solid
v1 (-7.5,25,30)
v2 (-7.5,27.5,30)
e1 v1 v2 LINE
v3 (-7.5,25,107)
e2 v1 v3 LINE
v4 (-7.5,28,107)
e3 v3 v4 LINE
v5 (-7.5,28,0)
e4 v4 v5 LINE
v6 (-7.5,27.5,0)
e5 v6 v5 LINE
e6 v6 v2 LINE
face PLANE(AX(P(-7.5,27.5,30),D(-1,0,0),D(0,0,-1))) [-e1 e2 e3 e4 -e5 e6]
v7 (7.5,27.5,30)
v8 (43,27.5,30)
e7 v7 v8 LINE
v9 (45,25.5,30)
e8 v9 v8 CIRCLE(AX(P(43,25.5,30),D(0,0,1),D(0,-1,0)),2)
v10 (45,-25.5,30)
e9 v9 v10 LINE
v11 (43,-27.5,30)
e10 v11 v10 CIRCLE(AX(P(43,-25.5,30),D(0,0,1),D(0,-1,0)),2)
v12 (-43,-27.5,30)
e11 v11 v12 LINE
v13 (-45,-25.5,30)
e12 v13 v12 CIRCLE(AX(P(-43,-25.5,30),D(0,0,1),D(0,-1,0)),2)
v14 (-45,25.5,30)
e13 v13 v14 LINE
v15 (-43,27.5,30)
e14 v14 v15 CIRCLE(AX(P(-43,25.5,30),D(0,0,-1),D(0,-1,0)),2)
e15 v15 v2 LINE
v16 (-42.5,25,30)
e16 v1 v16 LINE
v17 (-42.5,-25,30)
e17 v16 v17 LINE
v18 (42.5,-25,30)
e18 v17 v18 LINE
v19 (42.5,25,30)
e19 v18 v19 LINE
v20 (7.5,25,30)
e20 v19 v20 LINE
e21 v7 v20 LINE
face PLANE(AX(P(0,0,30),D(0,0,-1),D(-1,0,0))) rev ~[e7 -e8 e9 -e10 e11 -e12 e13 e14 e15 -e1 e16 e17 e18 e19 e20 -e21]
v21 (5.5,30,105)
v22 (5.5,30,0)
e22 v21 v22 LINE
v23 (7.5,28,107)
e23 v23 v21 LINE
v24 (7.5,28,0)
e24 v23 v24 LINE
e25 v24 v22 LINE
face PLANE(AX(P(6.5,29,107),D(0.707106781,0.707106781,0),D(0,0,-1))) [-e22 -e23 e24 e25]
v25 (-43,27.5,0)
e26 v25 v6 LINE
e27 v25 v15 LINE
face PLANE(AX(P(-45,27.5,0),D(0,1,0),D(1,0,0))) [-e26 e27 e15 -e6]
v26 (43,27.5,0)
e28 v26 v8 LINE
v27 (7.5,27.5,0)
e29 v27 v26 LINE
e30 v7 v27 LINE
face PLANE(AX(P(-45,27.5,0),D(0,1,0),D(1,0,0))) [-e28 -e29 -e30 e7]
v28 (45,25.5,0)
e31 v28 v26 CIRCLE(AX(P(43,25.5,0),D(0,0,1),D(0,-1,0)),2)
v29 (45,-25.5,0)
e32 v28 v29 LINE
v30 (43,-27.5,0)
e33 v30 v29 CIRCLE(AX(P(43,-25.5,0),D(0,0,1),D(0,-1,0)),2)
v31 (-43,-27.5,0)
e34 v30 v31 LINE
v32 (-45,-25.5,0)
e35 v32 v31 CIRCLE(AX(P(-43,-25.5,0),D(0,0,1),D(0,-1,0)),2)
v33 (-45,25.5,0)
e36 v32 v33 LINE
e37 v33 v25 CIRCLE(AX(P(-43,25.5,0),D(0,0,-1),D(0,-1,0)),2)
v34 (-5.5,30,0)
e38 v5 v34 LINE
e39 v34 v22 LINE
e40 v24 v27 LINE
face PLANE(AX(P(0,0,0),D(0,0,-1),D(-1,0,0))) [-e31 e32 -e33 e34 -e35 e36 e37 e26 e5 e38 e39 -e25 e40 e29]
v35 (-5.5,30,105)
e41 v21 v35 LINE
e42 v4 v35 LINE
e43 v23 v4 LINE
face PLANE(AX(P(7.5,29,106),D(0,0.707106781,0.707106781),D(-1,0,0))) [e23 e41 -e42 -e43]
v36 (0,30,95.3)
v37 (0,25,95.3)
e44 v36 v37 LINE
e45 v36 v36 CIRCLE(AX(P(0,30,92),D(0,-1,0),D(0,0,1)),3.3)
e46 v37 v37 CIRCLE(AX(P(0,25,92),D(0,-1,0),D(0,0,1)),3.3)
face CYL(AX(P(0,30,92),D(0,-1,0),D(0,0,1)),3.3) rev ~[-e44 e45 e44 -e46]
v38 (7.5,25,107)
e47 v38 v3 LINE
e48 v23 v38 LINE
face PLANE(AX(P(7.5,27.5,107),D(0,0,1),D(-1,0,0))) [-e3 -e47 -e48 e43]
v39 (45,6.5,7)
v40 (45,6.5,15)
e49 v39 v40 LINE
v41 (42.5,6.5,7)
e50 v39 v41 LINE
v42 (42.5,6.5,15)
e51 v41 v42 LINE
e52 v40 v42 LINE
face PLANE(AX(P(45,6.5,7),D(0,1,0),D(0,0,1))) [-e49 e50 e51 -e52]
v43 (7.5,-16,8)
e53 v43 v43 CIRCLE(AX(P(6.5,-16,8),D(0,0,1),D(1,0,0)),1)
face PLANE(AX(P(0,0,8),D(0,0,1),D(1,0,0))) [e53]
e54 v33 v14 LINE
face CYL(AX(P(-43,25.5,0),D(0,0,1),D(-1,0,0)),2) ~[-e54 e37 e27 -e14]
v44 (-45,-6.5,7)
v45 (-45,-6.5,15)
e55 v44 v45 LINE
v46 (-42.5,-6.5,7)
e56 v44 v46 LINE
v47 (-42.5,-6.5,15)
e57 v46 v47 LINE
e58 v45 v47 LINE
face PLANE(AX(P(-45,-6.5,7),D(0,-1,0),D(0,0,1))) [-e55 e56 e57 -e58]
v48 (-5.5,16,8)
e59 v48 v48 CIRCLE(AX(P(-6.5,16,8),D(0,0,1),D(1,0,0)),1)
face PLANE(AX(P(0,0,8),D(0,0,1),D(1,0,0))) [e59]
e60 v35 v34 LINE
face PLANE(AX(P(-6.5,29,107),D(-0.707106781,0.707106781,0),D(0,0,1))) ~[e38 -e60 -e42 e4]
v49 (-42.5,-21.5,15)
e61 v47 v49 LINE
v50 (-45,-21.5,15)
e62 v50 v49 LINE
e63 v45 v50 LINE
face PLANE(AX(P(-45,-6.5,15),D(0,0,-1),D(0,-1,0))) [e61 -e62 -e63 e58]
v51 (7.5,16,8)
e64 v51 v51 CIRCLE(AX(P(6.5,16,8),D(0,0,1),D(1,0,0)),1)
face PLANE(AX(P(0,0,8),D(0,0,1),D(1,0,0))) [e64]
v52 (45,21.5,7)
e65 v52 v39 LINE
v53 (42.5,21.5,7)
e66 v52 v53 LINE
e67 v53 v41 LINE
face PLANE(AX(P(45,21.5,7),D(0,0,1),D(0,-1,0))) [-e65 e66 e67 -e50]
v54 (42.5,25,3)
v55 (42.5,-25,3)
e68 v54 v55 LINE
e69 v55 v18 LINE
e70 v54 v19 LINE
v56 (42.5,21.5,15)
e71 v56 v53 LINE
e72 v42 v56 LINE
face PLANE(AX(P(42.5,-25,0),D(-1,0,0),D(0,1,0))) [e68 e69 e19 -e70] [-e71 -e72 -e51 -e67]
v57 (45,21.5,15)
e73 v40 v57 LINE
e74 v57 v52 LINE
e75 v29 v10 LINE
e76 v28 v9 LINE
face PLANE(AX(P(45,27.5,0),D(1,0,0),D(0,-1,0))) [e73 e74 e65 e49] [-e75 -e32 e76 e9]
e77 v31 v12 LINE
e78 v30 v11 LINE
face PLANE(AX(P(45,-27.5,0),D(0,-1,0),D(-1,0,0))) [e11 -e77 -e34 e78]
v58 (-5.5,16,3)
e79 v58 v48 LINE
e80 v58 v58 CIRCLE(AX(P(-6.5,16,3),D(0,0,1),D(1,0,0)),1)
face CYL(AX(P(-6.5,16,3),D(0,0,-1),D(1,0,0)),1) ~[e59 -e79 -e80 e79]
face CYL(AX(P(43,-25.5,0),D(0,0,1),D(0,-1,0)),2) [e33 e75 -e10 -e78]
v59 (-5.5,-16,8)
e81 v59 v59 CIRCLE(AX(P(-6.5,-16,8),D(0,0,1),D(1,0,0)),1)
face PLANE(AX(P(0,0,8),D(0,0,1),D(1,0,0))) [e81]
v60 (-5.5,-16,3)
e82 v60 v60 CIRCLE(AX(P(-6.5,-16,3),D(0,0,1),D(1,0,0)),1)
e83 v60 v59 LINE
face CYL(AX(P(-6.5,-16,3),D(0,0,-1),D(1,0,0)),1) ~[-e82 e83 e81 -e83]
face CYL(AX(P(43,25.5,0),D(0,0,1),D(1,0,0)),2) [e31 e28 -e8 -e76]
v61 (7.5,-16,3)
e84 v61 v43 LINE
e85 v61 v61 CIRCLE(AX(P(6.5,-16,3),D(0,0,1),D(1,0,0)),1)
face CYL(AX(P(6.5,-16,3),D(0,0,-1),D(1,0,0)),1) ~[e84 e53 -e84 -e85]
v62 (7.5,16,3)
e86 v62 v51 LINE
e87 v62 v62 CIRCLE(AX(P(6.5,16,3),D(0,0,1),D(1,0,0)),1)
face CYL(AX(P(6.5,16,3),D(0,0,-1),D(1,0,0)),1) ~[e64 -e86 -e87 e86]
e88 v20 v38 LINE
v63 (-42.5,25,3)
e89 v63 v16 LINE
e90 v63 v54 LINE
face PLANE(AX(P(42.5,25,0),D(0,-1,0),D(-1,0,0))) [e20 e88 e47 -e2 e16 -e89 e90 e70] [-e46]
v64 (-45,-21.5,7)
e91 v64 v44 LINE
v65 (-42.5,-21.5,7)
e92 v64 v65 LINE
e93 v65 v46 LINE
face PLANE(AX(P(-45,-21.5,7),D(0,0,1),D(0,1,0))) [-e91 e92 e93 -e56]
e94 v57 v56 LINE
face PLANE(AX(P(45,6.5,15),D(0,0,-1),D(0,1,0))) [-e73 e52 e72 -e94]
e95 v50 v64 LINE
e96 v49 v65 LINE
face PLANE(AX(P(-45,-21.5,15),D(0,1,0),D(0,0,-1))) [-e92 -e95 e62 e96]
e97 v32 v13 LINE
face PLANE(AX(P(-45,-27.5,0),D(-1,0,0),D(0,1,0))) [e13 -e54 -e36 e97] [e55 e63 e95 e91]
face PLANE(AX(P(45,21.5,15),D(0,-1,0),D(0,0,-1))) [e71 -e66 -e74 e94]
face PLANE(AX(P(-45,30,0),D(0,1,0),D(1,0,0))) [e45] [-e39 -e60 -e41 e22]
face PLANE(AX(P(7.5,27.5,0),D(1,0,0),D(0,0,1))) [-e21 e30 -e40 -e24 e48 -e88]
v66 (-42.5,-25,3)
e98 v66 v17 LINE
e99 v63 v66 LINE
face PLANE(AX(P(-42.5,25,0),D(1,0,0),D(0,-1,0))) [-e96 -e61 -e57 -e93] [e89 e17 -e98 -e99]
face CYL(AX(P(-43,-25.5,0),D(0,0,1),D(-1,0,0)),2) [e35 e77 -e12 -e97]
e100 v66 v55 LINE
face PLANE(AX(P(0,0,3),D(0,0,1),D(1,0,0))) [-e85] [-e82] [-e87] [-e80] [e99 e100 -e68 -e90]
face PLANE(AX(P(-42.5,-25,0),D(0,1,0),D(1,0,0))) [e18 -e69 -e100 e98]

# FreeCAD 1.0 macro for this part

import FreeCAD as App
import Part
import Sketcher
from FreeCAD import Vector
Q = App.Units.Quantity


def edges_at(feature, points):
    """Names of the edges that pass closest to the given points."""
    edges = feature.Shape.Edges
    near = lambda p: min(range(len(edges)), key=lambda i: edges[i].distToShape(Part.Vertex(*p))[0])
    return sorted({f"Edge{near(p) + 1}" for p in points})

doc = App.newDocument("Part")
body = doc.addObject("PartDesign::Body", "Body")

sketch1 = body.newObject("Sketcher::SketchObject", "Sketch")
sketch1.AttachmentSupport = (doc.getObject("XY_Plane"), [""])
sketch1.MapMode = "FlatFace"
sketch1.addGeometry([
    Part.LineSegment(Vector(42.5, 25, 0), Vector(-42.5, 25, 0)),
    Part.LineSegment(Vector(-42.5, 25, 0), Vector(-42.5, -25, 0)),
    Part.LineSegment(Vector(-42.5, -25, 0), Vector(42.5, -25, 0)),
    Part.LineSegment(Vector(42.5, -25, 0), Vector(42.5, 25, 0)),
], False)
sketch1.addConstraint([
    Sketcher.Constraint("Coincident", 0, 2, 1, 1),
    Sketcher.Constraint("Coincident", 1, 2, 2, 1),
    Sketcher.Constraint("Coincident", 2, 2, 3, 1),
    Sketcher.Constraint("Coincident", 3, 2, 0, 1),
    Sketcher.Constraint("Horizontal", 0),
    Sketcher.Constraint("Vertical", 1),
    Sketcher.Constraint("Horizontal", 2),
    Sketcher.Constraint("Vertical", 3),
    Sketcher.Constraint("Symmetric", 0, 2, 2, 2, -1, 1),
    Sketcher.Constraint("DistanceX", 0, 2, 0, 1, Q("85 mm")),
    Sketcher.Constraint("DistanceY", 1, 2, 1, 1, Q("50 mm")),
])
pad1 = body.newObject("PartDesign::Pad", "Pad")
pad1.Profile = sketch1
pad1.Length = 3

sketch2 = body.newObject("Sketcher::SketchObject", "Sketch001")
sketch2.AttachmentSupport = (doc.getObject("XY_Plane"), [""])
sketch2.MapMode = "FlatFace"
sketch2.addGeometry([
    Part.LineSegment(Vector(-45, -27.5, 0), Vector(-45, 27.5, 0)),
    Part.LineSegment(Vector(-45, 27.5, 0), Vector(45, 27.5, 0)),
    Part.LineSegment(Vector(45, 27.5, 0), Vector(45, -27.5, 0)),
    Part.LineSegment(Vector(45, -27.5, 0), Vector(-45, -27.5, 0)),
    Part.LineSegment(Vector(42.5, -25, 0), Vector(42.5, 25, 0)),
    Part.LineSegment(Vector(42.5, 25, 0), Vector(-42.5, 25, 0)),
    Part.LineSegment(Vector(-42.5, 25, 0), Vector(-42.5, -25, 0)),
    Part.LineSegment(Vector(-42.5, -25, 0), Vector(42.5, -25, 0)),
], False)
sketch2.addConstraint([
    Sketcher.Constraint("Coincident", 0, 2, 1, 1),
    Sketcher.Constraint("Coincident", 1, 2, 2, 1),
    Sketcher.Constraint("Coincident", 2, 2, 3, 1),
    Sketcher.Constraint("Coincident", 3, 2, 0, 1),
    Sketcher.Constraint("Coincident", 4, 2, 5, 1),
    Sketcher.Constraint("Coincident", 5, 2, 6, 1),
    Sketcher.Constraint("Coincident", 6, 2, 7, 1),
    Sketcher.Constraint("Coincident", 7, 2, 4, 1),
    Sketcher.Constraint("Vertical", 0),
    Sketcher.Constraint("Horizontal", 1),
    Sketcher.Constraint("Vertical", 2),
    Sketcher.Constraint("Horizontal", 3),
    Sketcher.Constraint("Vertical", 4),
    Sketcher.Constraint("Horizontal", 5),
    Sketcher.Constraint("Vertical", 6),
    Sketcher.Constraint("Horizontal", 7),
    Sketcher.Constraint("Symmetric", 0, 2, 2, 2, -1, 1),
    Sketcher.Constraint("Symmetric", 4, 2, 6, 2, -1, 1),
    Sketcher.Constraint("DistanceX", 4, 2, 1, 2, Q("2.5 mm")),
    Sketcher.Constraint("DistanceY", 4, 2, 1, 2, Q("2.5 mm")),
    Sketcher.Constraint("DistanceX", 1, 1, 1, 2, Q("90 mm")),
    Sketcher.Constraint("DistanceY", 0, 1, 0, 2, Q("55 mm")),
])
pad2 = body.newObject("PartDesign::Pad", "Pad001")
pad2.Profile = sketch2
pad2.Length = 30

sketch3 = body.newObject("Sketcher::SketchObject", "Sketch002")
sketch3.AttachmentSupport = (doc.getObject("XY_Plane"), [""])
sketch3.MapMode = "FlatFace"
sketch3.AttachmentOffset = App.Placement(Vector(0, 0, 3), App.Rotation())
sketch3.addGeometry([
    Part.Circle(Vector(6.5, 16, 0), Vector(0, 0, 1), 1),
    Part.Circle(Vector(6.5, -16, 0), Vector(0, 0, 1), 1),
    Part.Circle(Vector(-6.5, 16, 0), Vector(0, 0, 1), 1),
    Part.Circle(Vector(-6.5, -16, 0), Vector(0, 0, 1), 1),
], False)
sketch3.addConstraint([
    Sketcher.Constraint("Equal", 0, 1),
    Sketcher.Constraint("Equal", 1, 2),
    Sketcher.Constraint("Equal", 2, 3),
    Sketcher.Constraint("Symmetric", 1, 3, 2, 3, -1, 1),
    Sketcher.Constraint("Symmetric", 0, 3, 3, 3, -1, 1),
    Sketcher.Constraint("Symmetric", 0, 3, 2, 3, -2),
    Sketcher.Constraint("Diameter", 0, Q("2 mm")),
    Sketcher.Constraint("DistanceY", -1, 1, 0, 3, Q("16 mm")),
    Sketcher.Constraint("DistanceX", 2, 3, 0, 3, Q("13 mm")),
])
pad3 = body.newObject("PartDesign::Pad", "Pad002")
pad3.Profile = sketch3
pad3.Length = 5

sketch4 = body.newObject("Sketcher::SketchObject", "Sketch003")
sketch4.AttachmentSupport = (doc.getObject("YZ_Plane"), [""])
sketch4.MapMode = "FlatFace"
sketch4.AttachmentOffset = App.Placement(Vector(0, 0, 45), App.Rotation())
sketch4.addGeometry([
    Part.LineSegment(Vector(6.5, 15, 0), Vector(6.5, 7, 0)),
    Part.LineSegment(Vector(6.5, 7, 0), Vector(21.5, 7, 0)),
    Part.LineSegment(Vector(21.5, 7, 0), Vector(21.5, 15, 0)),
    Part.LineSegment(Vector(21.5, 15, 0), Vector(6.5, 15, 0)),
], False)
sketch4.addConstraint([
    Sketcher.Constraint("Coincident", 0, 2, 1, 1),
    Sketcher.Constraint("Coincident", 1, 2, 2, 1),
    Sketcher.Constraint("Coincident", 2, 2, 3, 1),
    Sketcher.Constraint("Coincident", 3, 2, 0, 1),
    Sketcher.Constraint("Vertical", 0),
    Sketcher.Constraint("Horizontal", 1),
    Sketcher.Constraint("Vertical", 2),
    Sketcher.Constraint("Horizontal", 3),
    Sketcher.Constraint("DistanceX", 1, 1, 1, 2, Q("15 mm")),
    Sketcher.Constraint("DistanceY", 0, 2, 0, 1, Q("8 mm")),
    Sketcher.Constraint("DistanceY", -1, 1, 0, 2, Q("7 mm")),
    Sketcher.Constraint("DistanceX", -1, 1, 0, 2, Q("6.5 mm")),
])
pocket1 = body.newObject("PartDesign::Pocket", "Pocket")
pocket1.Profile = sketch4
pocket1.Length = 2.5
doc.recompute()

polarpattern = body.newObject("PartDesign::PolarPattern", "PolarPattern")
polarpattern.Originals = [pocket1]
polarpattern.Axis = (doc.getObject("Z_Axis"), [""])
polarpattern.Angle = 360
polarpattern.Occurrences = 2
body.Tip = polarpattern

sketch5 = body.newObject("Sketcher::SketchObject", "Sketch004")
sketch5.AttachmentSupport = (doc.getObject("XZ_Plane"), [""])
sketch5.MapMode = "FlatFace"
sketch5.AttachmentOffset = App.Placement(Vector(0, 0, -27.5), App.Rotation())
sketch5.addGeometry([
    Part.LineSegment(Vector(-7.5, 0, 0), Vector(-7.5, 107, 0)),
    Part.LineSegment(Vector(-7.5, 107, 0), Vector(7.5, 107, 0)),
    Part.LineSegment(Vector(7.5, 107, 0), Vector(7.5, 0, 0)),
    Part.LineSegment(Vector(7.5, 0, 0), Vector(-7.5, 0, 0)),
], False)
sketch5.addConstraint([
    Sketcher.Constraint("Coincident", 0, 2, 1, 1),
    Sketcher.Constraint("Coincident", 1, 2, 2, 1),
    Sketcher.Constraint("Coincident", 2, 2, 3, 1),
    Sketcher.Constraint("Coincident", 3, 2, 0, 1),
    Sketcher.Constraint("Vertical", 0),
    Sketcher.Constraint("Horizontal", 1),
    Sketcher.Constraint("Vertical", 2),
    Sketcher.Constraint("Horizontal", 3),
    Sketcher.Constraint("Symmetric", 2, 2, 3, 2, -1, 1),
    Sketcher.Constraint("DistanceX", 1, 1, 1, 2, Q("15 mm")),
    Sketcher.Constraint("DistanceY", 0, 1, 0, 2, Q("107 mm")),
])
pad4 = body.newObject("PartDesign::Pad", "Pad003")
pad4.Profile = sketch5
pad4.Length = 5
pad4.Midplane = True
doc.recompute()

fillet = body.newObject("PartDesign::Fillet", "Fillet")
fillet.Base = (pad4, edges_at(pad4, [
    (-45, 27.5, 15),
    (-45, -27.5, 15),
    (45, -27.5, 15),
    (45, 27.5, 15),
]))
fillet.Radius = 2

sketch6 = body.newObject("Sketcher::SketchObject", "Sketch005")
sketch6.AttachmentSupport = (doc.getObject("XZ_Plane"), [""])
sketch6.MapMode = "FlatFace"
sketch6.AttachmentOffset = App.Placement(Vector(0, 0, -30), App.Rotation())
sketch6.addGeometry(Part.Circle(Vector(0, 92, 0), Vector(0, 0, 1), 3.3), False)
sketch6.addConstraint([
    Sketcher.Constraint("PointOnObject", 0, 3, -2),
    Sketcher.Constraint("Diameter", 0, Q("6.6 mm")),
    Sketcher.Constraint("DistanceY", -1, 1, 0, 3, Q("92 mm")),
])
doc.recompute()
hole = body.newObject("PartDesign::Hole", "Hole")
hole.Profile = sketch6
hole.ThreadType = "None"
hole.Diameter = 6.6
hole.DepthType = "ThroughAll"
hole.Reversed = True
doc.recompute()

chamfer = body.newObject("PartDesign::Chamfer", "Chamfer")
chamfer.Base = (hole, edges_at(hole, [(7.5, 30, 53.5), (-7.5, 30, 53.5), (0, 30, 107)]))
chamfer.Size = 2

doc.recompute()
